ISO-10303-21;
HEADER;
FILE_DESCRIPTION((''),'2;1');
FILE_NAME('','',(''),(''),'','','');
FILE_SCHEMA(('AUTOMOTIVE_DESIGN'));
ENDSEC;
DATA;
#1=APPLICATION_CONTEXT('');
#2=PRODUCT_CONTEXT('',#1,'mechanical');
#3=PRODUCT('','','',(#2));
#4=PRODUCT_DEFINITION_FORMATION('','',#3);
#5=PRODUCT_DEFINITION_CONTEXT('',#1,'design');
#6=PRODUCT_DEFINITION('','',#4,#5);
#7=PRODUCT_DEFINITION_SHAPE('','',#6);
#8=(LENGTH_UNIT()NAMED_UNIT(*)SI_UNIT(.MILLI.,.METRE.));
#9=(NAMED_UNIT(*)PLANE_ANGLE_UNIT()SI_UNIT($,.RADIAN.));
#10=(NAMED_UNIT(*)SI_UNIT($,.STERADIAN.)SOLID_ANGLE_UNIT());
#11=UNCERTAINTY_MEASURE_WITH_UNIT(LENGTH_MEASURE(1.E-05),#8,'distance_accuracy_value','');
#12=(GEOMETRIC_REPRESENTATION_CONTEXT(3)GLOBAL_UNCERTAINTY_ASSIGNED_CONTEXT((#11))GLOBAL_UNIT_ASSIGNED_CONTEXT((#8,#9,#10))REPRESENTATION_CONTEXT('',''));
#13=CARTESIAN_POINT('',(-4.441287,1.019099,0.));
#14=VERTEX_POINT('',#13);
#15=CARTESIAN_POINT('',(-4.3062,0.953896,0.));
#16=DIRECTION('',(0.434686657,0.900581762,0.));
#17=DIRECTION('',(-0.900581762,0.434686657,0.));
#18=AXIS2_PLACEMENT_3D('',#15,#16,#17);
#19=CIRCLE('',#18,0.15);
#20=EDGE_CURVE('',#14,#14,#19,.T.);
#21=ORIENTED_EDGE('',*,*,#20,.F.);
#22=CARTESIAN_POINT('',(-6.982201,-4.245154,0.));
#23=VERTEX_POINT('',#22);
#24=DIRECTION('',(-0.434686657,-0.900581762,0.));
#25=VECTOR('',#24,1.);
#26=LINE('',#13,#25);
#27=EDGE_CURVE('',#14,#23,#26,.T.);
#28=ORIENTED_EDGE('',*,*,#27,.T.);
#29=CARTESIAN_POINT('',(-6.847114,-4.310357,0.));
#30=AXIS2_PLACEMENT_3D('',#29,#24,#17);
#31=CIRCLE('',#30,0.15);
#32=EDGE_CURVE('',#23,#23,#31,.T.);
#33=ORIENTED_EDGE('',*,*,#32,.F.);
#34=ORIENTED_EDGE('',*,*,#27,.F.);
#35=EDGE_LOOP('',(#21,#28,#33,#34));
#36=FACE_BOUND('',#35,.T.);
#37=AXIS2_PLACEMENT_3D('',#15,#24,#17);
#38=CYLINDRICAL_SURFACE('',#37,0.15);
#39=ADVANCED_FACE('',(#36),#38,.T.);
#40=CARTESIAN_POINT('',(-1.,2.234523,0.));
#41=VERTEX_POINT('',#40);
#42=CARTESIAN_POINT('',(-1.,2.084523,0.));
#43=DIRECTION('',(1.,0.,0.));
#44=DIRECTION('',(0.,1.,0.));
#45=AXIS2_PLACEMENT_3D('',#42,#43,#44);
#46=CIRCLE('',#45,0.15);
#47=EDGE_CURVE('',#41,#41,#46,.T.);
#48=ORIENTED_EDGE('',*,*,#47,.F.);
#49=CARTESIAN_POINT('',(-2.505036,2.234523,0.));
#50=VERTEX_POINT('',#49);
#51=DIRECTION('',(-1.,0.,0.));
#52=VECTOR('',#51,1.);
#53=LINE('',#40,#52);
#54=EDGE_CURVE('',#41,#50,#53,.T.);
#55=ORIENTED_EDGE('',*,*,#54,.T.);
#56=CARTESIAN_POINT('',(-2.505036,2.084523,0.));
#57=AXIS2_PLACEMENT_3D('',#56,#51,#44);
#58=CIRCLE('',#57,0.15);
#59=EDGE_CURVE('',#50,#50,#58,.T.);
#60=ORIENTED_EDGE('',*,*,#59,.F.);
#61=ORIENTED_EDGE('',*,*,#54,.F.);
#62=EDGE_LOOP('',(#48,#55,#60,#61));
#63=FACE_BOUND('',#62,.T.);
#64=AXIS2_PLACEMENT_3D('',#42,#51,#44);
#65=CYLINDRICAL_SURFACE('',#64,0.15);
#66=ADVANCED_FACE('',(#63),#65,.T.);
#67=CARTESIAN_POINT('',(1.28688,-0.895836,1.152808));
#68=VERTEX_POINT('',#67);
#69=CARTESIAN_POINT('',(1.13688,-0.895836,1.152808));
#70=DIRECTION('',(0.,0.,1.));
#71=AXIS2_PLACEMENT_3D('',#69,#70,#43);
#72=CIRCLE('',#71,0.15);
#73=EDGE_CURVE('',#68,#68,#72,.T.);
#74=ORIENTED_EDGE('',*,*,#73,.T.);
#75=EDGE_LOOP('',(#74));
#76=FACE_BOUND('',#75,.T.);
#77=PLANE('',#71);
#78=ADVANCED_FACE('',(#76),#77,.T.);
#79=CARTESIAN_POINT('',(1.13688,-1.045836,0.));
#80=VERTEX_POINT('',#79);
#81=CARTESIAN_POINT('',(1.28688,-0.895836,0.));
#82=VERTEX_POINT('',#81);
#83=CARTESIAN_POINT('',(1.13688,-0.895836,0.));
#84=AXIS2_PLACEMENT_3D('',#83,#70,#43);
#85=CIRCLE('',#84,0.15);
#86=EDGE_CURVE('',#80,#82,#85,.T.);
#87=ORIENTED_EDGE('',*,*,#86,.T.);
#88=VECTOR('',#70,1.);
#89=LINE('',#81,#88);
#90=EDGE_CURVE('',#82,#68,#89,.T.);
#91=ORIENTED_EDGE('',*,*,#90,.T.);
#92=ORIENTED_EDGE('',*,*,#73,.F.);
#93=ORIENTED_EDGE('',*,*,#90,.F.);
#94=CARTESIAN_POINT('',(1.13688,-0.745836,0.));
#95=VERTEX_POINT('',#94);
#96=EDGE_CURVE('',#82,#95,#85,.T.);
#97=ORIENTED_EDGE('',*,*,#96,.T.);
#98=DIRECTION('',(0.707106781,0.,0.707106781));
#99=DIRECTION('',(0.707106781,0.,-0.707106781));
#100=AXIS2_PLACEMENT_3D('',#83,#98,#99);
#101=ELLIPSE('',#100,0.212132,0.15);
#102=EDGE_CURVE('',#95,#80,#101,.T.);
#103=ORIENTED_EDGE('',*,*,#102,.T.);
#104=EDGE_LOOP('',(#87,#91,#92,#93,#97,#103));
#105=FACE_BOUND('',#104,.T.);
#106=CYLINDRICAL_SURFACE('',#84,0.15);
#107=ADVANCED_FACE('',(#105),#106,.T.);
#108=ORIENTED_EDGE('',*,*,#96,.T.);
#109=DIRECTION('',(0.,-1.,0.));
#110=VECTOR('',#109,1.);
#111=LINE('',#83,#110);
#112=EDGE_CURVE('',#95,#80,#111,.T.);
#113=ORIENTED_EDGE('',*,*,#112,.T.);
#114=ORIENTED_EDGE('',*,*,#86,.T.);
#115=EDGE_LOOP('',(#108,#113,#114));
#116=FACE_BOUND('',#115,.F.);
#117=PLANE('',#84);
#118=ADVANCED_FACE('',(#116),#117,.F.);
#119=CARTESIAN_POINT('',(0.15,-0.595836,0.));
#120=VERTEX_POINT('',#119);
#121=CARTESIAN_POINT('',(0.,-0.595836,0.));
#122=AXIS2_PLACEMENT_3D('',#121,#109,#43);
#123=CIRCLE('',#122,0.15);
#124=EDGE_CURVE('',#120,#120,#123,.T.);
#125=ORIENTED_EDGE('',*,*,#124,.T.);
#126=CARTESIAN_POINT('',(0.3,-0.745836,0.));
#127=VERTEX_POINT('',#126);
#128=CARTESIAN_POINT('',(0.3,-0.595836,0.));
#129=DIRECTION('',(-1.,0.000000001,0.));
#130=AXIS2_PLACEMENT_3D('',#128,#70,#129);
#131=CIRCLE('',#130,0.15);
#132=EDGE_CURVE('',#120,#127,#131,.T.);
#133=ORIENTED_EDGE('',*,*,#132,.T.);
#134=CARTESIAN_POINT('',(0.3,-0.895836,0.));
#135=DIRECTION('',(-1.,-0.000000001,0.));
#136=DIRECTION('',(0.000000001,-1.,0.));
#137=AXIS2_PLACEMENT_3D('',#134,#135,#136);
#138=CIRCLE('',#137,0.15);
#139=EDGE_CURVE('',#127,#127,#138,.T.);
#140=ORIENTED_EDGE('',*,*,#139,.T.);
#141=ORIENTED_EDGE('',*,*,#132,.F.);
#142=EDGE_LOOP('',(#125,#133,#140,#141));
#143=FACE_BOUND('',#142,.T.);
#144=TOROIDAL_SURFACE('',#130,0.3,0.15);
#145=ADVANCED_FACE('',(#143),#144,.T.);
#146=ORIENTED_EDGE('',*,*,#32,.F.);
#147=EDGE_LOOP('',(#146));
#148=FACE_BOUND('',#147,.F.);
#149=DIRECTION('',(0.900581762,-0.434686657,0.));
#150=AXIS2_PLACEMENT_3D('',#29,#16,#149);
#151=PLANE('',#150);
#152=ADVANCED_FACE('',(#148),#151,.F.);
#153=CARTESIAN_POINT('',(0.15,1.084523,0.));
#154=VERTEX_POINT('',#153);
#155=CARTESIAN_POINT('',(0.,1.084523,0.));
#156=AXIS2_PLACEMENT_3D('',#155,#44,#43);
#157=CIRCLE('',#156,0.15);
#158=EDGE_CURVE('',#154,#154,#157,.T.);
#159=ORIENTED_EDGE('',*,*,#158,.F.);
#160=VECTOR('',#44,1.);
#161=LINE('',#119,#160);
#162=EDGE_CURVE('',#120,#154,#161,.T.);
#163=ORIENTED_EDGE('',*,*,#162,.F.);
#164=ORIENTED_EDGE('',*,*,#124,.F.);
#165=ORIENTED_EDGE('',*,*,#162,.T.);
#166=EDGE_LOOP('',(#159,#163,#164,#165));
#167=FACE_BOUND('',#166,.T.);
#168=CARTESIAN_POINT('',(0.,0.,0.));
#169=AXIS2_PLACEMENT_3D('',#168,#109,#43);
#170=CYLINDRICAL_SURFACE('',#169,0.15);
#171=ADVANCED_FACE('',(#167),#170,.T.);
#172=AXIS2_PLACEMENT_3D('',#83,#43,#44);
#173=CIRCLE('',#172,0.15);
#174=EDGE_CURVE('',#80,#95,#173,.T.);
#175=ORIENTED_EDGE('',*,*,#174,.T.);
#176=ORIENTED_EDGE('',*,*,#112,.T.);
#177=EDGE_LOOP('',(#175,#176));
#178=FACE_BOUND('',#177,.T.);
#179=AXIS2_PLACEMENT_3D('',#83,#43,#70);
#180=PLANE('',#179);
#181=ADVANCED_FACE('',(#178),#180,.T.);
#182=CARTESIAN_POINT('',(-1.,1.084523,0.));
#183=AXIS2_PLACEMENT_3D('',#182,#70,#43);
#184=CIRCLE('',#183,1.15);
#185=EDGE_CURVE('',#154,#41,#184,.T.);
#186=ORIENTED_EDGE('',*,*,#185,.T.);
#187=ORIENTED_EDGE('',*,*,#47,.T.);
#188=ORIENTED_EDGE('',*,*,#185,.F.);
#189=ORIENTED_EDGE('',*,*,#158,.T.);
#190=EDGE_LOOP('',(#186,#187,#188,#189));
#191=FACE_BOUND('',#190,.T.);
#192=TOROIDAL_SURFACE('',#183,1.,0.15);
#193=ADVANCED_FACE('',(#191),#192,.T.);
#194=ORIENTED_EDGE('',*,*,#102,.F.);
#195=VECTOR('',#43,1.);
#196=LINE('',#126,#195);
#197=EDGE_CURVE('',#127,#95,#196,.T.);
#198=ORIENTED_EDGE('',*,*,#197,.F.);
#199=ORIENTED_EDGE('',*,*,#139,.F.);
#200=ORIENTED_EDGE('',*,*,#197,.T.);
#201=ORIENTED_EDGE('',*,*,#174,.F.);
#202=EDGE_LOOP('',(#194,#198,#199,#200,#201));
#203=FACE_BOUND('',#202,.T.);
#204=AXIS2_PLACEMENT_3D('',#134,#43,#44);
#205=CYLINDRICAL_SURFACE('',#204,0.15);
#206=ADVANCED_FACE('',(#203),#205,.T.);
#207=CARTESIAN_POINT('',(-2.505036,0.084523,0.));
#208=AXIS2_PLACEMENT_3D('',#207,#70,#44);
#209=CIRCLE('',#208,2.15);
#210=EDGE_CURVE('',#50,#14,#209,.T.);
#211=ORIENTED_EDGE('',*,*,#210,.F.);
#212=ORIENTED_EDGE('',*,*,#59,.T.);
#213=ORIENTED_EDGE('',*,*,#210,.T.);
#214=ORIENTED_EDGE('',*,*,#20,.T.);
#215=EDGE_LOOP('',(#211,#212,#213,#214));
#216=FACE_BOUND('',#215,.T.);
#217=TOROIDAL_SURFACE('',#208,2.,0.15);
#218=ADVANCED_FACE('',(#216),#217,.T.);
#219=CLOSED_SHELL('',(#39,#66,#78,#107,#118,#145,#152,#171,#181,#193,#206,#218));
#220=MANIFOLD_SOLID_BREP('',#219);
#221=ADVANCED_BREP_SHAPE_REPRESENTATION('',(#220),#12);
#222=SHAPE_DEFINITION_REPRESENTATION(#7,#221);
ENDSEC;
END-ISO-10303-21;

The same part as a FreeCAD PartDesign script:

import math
import FreeCAD as App
import Part
import Sketcher

V = App.Vector
Q = App.Units.Quantity

doc = App.newDocument("Part")
body = doc.addObject("PartDesign::Body", "Body")

# Sketch on XZ plane
sketch1 = body.newObject("Sketcher::SketchObject", "Sketch")
sketch1.AttachmentSupport = (doc.getObject("XZ_Plane"), [""])
sketch1.MapMode = "FlatFace"
sketch1.addGeometry(Part.Circle(V(0, 0, 0), V(0, 0, 1), 0.15), False)
sketch1.addConstraint([
    Sketcher.Constraint("Coincident", 0, 3, -1, 1),
    Sketcher.Constraint("Diameter", 0, Q("0.3 mm")),
])

# Sketch on XY plane
sketch2 = body.newObject("Sketcher::SketchObject", "Sketch001")
sketch2.AttachmentSupport = (doc.getObject("XY_Plane"), [""])
sketch2.MapMode = "FlatFace"
sketch2.addGeometry([
    Part.LineSegment(V(0, 0, 0), V(0, 1.1, 0)),  # 0
    Part.ArcOfCircle(Part.Circle(V(-1, 1.1, 0), V(0, 0, 1), 1), math.radians(0), math.radians(90)),  # 1
    Part.LineSegment(V(-1, 2.1, 0), V(-2.5, 2.1, 0)),  # 2
    Part.ArcOfCircle(Part.Circle(V(-2.5, 0.1, 0), V(0, 0, 1), 2), math.radians(90), math.radians(154)),  # 3
    Part.LineSegment(V(-4.3, 1, 0), V(-6.8, -4.3, 0)),  # 4
], False)
sketch2.addConstraint([
    Sketcher.Constraint("Tangent", 0, 2, 1, 1),
    Sketcher.Constraint("Tangent", 1, 2, 2, 1),
    Sketcher.Constraint("Tangent", 2, 2, 3, 1),
    Sketcher.Constraint("Tangent", 3, 2, 4, 1),
    Sketcher.Constraint("Vertical", 0),
    Sketcher.Constraint("Horizontal", 2),
    Sketcher.Constraint("Coincident", 0, 1, -1, 1),
    Sketcher.Constraint("Radius", 1, Q("1 mm")),
    Sketcher.Constraint("Radius", 3, Q("2 mm")),
    Sketcher.Constraint("DistanceX", 3, 2, -1, 1, Q("4.3062 mm")),
    Sketcher.Constraint("Distance", 4, Q("5.845392 mm")),
    Sketcher.Constraint("DistanceX", 2, 2, 2, 1, Q("1.505036 mm")),
    Sketcher.Constraint("DistanceY", 0, 1, 0, 2, Q("1.084523 mm")),
])
doc.recompute()

additivepipe = body.newObject("PartDesign::AdditivePipe", "AdditivePipe")
additivepipe.Profile = sketch1
additivepipe.Spine = (sketch2, ["Edge1", "Edge2", "Edge3", "Edge4", "Edge5"])

# Sketch on XZ plane
sketch3 = body.newObject("Sketcher::SketchObject", "Sketch002")
sketch3.AttachmentSupport = (doc.getObject("XZ_Plane"), [""])
sketch3.MapMode = "FlatFace"
sketch3.addGeometry(Part.Circle(V(0, 0, 0), V(0, 0, 1), 0.15), False)
sketch3.addConstraint([
    Sketcher.Constraint("Coincident", 0, 3, -1, 1),
    Sketcher.Constraint("Diameter", 0, Q("0.3 mm")),
])

# Sketch on XY plane
sketch4 = body.newObject("Sketcher::SketchObject", "Sketch003")
sketch4.AttachmentSupport = (doc.getObject("XY_Plane"), [""])
sketch4.MapMode = "FlatFace"
sketch4.addGeometry([
    Part.LineSegment(V(0, 0, 0), V(0, -0.6, 0)),
    Part.ArcOfCircle(Part.Circle(V(0.3, -0.6, 0), V(0, 0, 1), 0.3), math.radians(180), math.radians(270)),
    Part.LineSegment(V(0.3, -0.9, 0), V(1.14, -0.9, 0)),
], False)
sketch4.addConstraint([
    Sketcher.Constraint("Tangent", 0, 2, 1, 1),
    Sketcher.Constraint("Tangent", 1, 2, 2, 1),
    Sketcher.Constraint("Vertical", 0),
    Sketcher.Constraint("Horizontal", 2),
    Sketcher.Constraint("Coincident", 0, 1, -1, 1),
    Sketcher.Constraint("Radius", 1, Q("0.3 mm")),
    Sketcher.Constraint("DistanceX", 2, 1, 2, 2, Q("0.83688 mm")),
    Sketcher.Constraint("DistanceY", 0, 2, 0, 1, Q("0.595836 mm")),
])
doc.recompute()

additivepipe2 = body.newObject("PartDesign::AdditivePipe", "AdditivePipe001")
additivepipe2.Profile = sketch3
additivepipe2.Spine = (sketch4, ["Edge1", "Edge2", "Edge3"])

# Sketch on XY plane
sketch5 = body.newObject("Sketcher::SketchObject", "Sketch004")
sketch5.AttachmentSupport = (doc.getObject("XY_Plane"), [""])
sketch5.MapMode = "FlatFace"
sketch5.addGeometry(Part.Circle(V(1.14, -0.9, 0), V(0, 0, 1), 0.15), False)
sketch5.addConstraint([
    Sketcher.Constraint("Diameter", 0, Q("0.3 mm")),
    Sketcher.Constraint("DistanceX", -1, 1, 0, 3, Q("1.13688 mm")),
    Sketcher.Constraint("DistanceY", 0, 3, -1, 1, Q("0.895836 mm")),
])

# Sketch on XZ plane
sketch6 = body.newObject("Sketcher::SketchObject", "Sketch005")
sketch6.AttachmentSupport = (doc.getObject("XZ_Plane"), [""])
sketch6.MapMode = "FlatFace"
sketch6.AttachmentOffset = App.Placement(V(0, 0, 0.895836), App.Rotation())
sketch6.addGeometry(Part.LineSegment(V(1.1, 0, 0), V(1.1, 1.2, 0)), False)
sketch6.addConstraint([
    Sketcher.Constraint("Vertical", 0),
    Sketcher.Constraint("PointOnObject", 0, 1, -1),
    Sketcher.Constraint("DistanceY", 0, 1, 0, 2, Q("1.152808 mm")),
    Sketcher.Constraint("DistanceX", -1, 1, 0, 1, Q("1.13688 mm")),
])
doc.recompute()

additivepipe3 = body.newObject("PartDesign::AdditivePipe", "AdditivePipe002")
additivepipe3.Profile = sketch5
additivepipe3.Spine = (sketch6, ["Edge1"])

doc.recompute()
